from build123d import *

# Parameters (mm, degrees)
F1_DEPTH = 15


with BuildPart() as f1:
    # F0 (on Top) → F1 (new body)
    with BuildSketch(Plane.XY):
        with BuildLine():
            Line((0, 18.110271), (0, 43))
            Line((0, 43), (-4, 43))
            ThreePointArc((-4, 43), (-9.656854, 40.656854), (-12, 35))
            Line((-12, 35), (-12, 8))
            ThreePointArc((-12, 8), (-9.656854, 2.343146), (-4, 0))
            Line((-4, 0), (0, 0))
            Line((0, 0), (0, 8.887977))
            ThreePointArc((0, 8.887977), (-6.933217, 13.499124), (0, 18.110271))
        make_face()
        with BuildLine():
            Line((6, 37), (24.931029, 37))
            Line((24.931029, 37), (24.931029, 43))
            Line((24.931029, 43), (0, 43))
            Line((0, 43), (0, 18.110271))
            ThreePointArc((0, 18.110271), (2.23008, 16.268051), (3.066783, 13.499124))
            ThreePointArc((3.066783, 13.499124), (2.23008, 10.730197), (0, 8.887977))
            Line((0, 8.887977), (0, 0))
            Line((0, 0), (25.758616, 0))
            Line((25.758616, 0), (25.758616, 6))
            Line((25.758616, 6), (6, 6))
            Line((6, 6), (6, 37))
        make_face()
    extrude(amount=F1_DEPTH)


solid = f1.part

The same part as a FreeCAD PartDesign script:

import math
import FreeCAD as App
import Part
import Sketcher
Q = App.Units.Quantity

doc = App.newDocument("Part")
params = doc.addObject("Spreadsheet::Sheet", "Params")
for row, (alias, value) in enumerate([
    ("sketch1_radius", "8.000001 mm"),
    ("sketch1_radius2", "5 mm"),
    ("sketch1_height", "27 mm"),
    ("sketch1_height2", "6 mm"),
    ("pad1_length", "15 mm"),
], start=1):
    params.set(f"A{row}", alias)
    params.set(f"B{row}", "=" + value)
    params.setAlias(f"B{row}", alias)

body = doc.addObject("PartDesign::Body", "Body")

sketch1 = doc.addObject("Sketcher::SketchObject", "Sketch")
body.addObject(sketch1)
sketch1.AttachmentSupport = (doc.XY_Plane, [""])
sketch1.MapMode = "FlatFace"
sketch1.addGeometry([
    Part.ArcOfCircle(Part.Circle(App.Vector(-3.999999, 34.999999, 0), App.Vector(0, 0, 1), 8.000001), math.radians(90.000006), math.radians(179.999994)),
    Part.LineSegment(App.Vector(-12, 35, 0), App.Vector(-12, 8, 0)),
    Part.ArcOfCircle(Part.Circle(App.Vector(-3.999999, 8.000001, 0), App.Vector(0, 0, 1), 8.000001), math.radians(-179.999994), math.radians(-90.000006)),
    Part.LineSegment(App.Vector(-4, 0, 0), App.Vector(25.758616, 0, 0)),
    Part.LineSegment(App.Vector(25.758616, 0, 0), App.Vector(25.758616, 6, 0)),
    Part.LineSegment(App.Vector(25.758616, 6, 0), App.Vector(6, 6, 0)),
    Part.LineSegment(App.Vector(6, 6, 0), App.Vector(6, 37, 0)),
    Part.LineSegment(App.Vector(6, 37, 0), App.Vector(24.931029, 37, 0)),
    Part.LineSegment(App.Vector(24.931029, 37, 0), App.Vector(24.931029, 43, 0)),
    Part.LineSegment(App.Vector(24.931029, 43, 0), App.Vector(-4, 43, 0)),
    Part.ArcOfCircle(Part.Circle(App.Vector(-1.933217, 13.499124, 0), App.Vector(0, 0, 1), 5), math.radians(67.254203), math.radians(292.745797)),
    Part.ArcOfCircle(Part.Circle(App.Vector(-1.933219, 13.499123, 0), App.Vector(0, 0, 1), 5.000002), math.radians(0.00001), math.radians(67.254182)),
    Part.ArcOfCircle(Part.Circle(App.Vector(-1.933219, 13.499125, 0), App.Vector(0, 0, 1), 5.000002), math.radians(-67.254182), math.radians(-0.00001)),
], False)
sketch1.addConstraint([
    Sketcher.Constraint("Tangent", 0, 2, 1, 1),
    Sketcher.Constraint("Tangent", 1, 2, 2, 1),
    Sketcher.Constraint("Tangent", 2, 2, 3, 1),
    Sketcher.Constraint("Coincident", 3, 2, 4, 1),
    Sketcher.Constraint("Coincident", 4, 2, 5, 1),
    Sketcher.Constraint("Coincident", 5, 2, 6, 1),
    Sketcher.Constraint("Coincident", 6, 2, 7, 1),
    Sketcher.Constraint("Coincident", 7, 2, 8, 1),
    Sketcher.Constraint("Coincident", 8, 2, 9, 1),
    Sketcher.Constraint("Tangent", 9, 2, 0, 1),
    Sketcher.Constraint("Tangent", 10, 1, 11, 2),
    Sketcher.Constraint("Tangent", 11, 1, 12, 2),
    Sketcher.Constraint("Tangent", 12, 1, 10, 2),
    Sketcher.Constraint("Vertical", 1),
    Sketcher.Constraint("Horizontal", 3),
    Sketcher.Constraint("Vertical", 4),
    Sketcher.Constraint("Horizontal", 5),
    Sketcher.Constraint("Vertical", 6),
    Sketcher.Constraint("Horizontal", 7),
    Sketcher.Constraint("Vertical", 8),
    Sketcher.Constraint("Horizontal", 9),
    Sketcher.Constraint("Equal", 0, 2),
    Sketcher.Constraint("PointOnObject", 2, 2, -1),
    Sketcher.Constraint("PointOnObject", 10, 1, -2),
    Sketcher.Constraint("PointOnObject", 12, 1, -2),
    Sketcher.Constraint("Horizontal", 12, 3, 11, 1),
    Sketcher.Constraint("Equal", 4, 8),
    Sketcher.Constraint("Radius", 0, Q("8.000001 mm")),
    Sketcher.Constraint("Radius", 10, Q("5 mm")),
    Sketcher.Constraint("DistanceY", 1, 2, 1, 1, Q("27 mm")),
    Sketcher.Constraint("DistanceY", 4, 1, 4, 2, Q("6 mm")),
    Sketcher.Constraint("DistanceX", 0, 3, -1, 1, Q("3.999999 mm")),
    Sketcher.Constraint("DistanceX", -1, 1, 5, 2, Q("6 mm")),
    Sketcher.Constraint("DistanceX", 7, 1, 7, 2, Q("18.931029 mm")),
    Sketcher.Constraint("DistanceX", 3, 1, 3, 2, Q("29.758616 mm")),
    Sketcher.Constraint("DistanceX", 11, 3, -1, 1, Q("1.933219 mm")),
    Sketcher.Constraint("DistanceY", -1, 1, 10, 1, Q("18.110271 mm")),
])
sketch1.setExpression("Constraints[27]", "Params.sketch1_radius")
sketch1.setExpression("Constraints[28]", "Params.sketch1_radius2")
sketch1.setExpression("Constraints[29]", "Params.sketch1_height")
sketch1.setExpression("Constraints[30]", "Params.sketch1_height2")
pad1 = doc.addObject("PartDesign::Pad", "Pad")
body.addObject(pad1)
pad1.Profile = sketch1
pad1.setExpression("Length", "Params.pad1_length")

doc.recompute()
